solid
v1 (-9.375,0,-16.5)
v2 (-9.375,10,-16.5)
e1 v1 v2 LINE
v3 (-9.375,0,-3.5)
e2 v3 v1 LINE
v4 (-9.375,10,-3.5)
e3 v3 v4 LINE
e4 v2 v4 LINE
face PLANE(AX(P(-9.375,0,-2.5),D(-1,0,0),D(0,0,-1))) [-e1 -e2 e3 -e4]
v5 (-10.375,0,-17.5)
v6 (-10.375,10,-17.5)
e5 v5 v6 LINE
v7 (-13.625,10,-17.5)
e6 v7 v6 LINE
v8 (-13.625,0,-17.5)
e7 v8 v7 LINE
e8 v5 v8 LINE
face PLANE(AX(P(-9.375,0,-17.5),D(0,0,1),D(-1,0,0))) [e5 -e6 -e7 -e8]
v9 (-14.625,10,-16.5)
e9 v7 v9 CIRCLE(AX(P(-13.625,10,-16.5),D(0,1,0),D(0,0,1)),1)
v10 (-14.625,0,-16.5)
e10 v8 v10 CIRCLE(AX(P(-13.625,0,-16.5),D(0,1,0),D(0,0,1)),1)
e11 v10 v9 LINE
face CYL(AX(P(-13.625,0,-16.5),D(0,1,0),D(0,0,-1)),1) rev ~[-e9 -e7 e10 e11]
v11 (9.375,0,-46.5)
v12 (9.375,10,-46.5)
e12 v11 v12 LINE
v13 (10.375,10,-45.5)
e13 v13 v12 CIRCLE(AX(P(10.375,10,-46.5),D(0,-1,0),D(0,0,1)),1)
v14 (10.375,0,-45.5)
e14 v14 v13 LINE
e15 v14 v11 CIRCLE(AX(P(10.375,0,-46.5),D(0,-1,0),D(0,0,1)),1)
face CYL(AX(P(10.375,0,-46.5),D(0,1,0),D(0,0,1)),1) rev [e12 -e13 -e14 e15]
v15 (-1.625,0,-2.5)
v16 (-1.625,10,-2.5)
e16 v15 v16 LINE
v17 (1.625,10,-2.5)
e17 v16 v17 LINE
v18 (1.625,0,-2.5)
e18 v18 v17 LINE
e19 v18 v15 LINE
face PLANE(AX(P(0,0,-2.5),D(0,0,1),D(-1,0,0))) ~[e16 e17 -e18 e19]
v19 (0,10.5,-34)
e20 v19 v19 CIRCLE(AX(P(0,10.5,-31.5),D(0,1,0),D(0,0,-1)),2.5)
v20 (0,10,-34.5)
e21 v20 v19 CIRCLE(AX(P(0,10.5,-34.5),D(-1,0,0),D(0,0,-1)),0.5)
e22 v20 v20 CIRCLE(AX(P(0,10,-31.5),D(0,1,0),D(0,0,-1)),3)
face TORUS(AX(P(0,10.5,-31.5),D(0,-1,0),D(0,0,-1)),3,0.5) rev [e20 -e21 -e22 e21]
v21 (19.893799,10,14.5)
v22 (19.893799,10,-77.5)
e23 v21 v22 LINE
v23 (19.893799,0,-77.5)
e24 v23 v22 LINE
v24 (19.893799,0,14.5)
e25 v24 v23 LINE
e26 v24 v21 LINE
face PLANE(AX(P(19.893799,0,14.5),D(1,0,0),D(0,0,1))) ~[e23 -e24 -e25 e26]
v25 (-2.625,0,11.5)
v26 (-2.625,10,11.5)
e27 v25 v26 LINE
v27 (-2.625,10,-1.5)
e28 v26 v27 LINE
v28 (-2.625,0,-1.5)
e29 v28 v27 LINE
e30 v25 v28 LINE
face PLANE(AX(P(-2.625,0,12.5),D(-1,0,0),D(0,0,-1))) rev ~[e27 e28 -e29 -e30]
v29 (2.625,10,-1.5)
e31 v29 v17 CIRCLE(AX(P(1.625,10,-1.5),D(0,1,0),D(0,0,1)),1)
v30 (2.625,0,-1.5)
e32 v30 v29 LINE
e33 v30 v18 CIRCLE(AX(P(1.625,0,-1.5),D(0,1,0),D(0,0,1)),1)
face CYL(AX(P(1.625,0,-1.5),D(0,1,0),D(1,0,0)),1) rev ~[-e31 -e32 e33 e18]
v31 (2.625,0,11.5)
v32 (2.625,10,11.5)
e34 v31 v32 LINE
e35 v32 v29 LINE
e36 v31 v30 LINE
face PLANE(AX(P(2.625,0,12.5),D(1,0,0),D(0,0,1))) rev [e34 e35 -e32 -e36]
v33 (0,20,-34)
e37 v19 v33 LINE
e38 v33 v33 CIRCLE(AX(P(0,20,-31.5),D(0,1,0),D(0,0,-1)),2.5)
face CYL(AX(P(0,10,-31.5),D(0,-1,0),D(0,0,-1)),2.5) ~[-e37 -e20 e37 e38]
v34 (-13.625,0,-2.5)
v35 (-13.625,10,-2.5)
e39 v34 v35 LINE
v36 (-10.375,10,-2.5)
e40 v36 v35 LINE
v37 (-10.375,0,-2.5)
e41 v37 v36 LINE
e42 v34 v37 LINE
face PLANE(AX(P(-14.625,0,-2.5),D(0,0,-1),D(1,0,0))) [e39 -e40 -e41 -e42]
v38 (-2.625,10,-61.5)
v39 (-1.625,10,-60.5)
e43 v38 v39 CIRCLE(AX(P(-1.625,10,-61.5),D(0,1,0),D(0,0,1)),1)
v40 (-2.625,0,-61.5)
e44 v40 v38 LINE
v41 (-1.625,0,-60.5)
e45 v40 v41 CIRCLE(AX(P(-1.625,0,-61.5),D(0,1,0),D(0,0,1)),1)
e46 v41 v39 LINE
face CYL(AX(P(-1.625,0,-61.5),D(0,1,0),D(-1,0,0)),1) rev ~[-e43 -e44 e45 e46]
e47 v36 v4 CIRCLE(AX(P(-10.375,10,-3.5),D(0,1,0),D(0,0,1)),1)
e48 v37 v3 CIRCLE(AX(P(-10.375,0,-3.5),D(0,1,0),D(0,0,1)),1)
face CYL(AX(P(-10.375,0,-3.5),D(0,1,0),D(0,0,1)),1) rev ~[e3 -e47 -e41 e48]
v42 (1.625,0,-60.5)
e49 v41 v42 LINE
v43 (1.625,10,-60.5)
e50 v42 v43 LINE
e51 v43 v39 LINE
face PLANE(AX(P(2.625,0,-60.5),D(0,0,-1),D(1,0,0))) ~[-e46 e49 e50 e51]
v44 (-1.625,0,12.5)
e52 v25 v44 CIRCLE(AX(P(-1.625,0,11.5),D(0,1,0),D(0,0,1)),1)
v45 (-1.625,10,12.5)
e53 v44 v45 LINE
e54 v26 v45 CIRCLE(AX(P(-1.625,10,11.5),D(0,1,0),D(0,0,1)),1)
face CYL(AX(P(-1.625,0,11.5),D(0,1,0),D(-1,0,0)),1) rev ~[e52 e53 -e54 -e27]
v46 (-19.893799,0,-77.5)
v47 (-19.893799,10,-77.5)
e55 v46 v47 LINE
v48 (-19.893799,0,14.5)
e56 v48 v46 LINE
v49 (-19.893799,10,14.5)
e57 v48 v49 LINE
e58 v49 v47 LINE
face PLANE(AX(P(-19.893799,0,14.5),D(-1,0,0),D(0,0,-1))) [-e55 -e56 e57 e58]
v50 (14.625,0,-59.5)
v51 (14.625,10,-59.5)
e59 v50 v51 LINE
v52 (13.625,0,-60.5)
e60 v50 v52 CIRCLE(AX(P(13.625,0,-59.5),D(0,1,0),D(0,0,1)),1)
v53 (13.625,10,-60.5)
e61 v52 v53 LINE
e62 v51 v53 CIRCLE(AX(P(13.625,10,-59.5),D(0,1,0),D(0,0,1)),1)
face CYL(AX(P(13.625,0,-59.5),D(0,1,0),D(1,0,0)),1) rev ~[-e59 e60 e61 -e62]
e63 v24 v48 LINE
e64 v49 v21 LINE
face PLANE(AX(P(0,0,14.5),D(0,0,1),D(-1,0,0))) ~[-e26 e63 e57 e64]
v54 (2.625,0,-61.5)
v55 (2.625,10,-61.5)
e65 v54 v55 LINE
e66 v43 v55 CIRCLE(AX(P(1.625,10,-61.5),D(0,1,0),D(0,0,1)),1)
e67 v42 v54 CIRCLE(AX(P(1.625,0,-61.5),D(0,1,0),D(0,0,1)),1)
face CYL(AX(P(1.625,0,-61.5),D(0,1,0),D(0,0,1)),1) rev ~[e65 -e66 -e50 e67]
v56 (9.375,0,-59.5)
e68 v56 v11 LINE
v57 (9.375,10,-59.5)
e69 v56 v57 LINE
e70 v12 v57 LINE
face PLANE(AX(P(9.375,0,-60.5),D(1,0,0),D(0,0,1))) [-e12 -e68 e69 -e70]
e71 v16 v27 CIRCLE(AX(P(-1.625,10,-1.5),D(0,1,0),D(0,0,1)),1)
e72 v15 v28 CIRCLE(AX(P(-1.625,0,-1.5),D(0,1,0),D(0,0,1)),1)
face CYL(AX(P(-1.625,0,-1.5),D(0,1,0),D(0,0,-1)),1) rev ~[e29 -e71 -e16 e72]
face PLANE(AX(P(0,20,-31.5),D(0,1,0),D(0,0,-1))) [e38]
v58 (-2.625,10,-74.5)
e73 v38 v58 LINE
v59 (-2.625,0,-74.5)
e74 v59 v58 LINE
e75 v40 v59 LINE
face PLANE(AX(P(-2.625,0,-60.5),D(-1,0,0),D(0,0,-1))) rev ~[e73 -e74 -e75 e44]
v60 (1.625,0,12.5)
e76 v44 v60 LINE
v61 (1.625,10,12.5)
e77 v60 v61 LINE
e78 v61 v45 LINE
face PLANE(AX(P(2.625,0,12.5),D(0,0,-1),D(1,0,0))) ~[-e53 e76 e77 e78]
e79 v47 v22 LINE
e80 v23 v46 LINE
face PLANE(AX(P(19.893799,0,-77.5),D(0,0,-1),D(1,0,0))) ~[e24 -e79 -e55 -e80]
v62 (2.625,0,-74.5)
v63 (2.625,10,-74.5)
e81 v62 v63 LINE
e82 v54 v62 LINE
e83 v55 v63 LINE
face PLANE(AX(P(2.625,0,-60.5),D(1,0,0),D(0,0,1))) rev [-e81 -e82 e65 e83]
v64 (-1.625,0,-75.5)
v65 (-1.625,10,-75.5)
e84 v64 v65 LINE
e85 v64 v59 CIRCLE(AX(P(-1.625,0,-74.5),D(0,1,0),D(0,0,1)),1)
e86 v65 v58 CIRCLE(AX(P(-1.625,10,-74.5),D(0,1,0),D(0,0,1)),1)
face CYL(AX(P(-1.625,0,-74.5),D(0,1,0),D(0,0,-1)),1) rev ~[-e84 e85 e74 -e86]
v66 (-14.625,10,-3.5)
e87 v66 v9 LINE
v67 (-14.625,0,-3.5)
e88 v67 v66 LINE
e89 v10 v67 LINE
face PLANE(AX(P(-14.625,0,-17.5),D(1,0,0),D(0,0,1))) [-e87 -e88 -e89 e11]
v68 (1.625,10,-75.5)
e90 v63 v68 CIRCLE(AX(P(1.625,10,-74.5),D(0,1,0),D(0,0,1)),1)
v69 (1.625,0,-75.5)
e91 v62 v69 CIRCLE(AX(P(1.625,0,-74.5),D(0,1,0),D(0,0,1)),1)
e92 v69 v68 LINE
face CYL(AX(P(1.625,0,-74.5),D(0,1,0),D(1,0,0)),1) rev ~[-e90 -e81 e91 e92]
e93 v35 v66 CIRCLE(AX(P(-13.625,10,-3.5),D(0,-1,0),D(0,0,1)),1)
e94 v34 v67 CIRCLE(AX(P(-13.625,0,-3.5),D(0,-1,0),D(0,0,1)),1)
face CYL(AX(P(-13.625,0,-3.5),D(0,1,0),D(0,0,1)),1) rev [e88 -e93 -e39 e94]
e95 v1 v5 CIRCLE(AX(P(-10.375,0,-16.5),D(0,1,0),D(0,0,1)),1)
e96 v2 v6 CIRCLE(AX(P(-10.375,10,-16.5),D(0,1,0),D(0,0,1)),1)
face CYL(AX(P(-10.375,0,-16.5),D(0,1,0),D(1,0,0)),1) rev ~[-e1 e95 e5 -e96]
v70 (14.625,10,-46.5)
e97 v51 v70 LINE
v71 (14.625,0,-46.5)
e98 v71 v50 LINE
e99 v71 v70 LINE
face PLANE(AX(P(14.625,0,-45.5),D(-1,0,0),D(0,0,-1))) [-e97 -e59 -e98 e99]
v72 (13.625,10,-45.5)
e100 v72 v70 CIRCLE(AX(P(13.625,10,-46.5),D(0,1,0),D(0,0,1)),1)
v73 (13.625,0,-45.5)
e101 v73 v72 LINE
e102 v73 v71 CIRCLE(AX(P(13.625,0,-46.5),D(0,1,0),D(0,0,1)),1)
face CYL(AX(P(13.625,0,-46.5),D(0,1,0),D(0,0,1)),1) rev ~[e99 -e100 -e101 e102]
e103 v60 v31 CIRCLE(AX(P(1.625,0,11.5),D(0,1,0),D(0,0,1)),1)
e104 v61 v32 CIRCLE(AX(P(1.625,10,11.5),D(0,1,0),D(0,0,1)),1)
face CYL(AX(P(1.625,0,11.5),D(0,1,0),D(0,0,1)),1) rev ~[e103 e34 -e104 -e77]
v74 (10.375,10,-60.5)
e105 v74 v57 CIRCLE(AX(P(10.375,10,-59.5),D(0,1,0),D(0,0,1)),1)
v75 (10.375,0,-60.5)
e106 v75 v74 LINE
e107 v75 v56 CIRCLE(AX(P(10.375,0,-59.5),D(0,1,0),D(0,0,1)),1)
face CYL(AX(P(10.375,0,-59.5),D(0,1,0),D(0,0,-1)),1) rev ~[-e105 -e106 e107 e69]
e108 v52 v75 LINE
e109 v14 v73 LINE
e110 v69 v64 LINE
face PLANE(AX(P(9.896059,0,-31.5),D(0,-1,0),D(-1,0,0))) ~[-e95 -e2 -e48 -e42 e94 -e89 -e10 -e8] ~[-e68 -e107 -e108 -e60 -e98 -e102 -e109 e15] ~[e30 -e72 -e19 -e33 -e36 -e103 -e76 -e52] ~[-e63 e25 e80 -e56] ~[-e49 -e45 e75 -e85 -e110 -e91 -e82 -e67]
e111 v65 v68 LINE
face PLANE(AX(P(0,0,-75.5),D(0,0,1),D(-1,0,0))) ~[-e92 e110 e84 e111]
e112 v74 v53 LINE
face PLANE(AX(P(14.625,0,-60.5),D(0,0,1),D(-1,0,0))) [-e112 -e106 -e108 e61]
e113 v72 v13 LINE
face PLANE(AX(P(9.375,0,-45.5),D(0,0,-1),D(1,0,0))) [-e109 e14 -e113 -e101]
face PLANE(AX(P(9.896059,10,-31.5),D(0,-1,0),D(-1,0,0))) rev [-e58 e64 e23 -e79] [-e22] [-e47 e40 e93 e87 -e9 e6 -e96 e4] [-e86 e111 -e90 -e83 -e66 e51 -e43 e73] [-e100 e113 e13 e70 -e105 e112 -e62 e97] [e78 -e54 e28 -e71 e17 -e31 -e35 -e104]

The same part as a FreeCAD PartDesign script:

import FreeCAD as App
import Part
import Sketcher

V = App.Vector
Q = App.Units.Quantity


def edges_at(feature, points):
    """Names of the edges that pass closest to the given points."""
    edges = feature.Shape.Edges
    near = lambda p: min(range(len(edges)), key=lambda i: edges[i].distToShape(Part.Vertex(*p))[0])
    return sorted({f"Edge{near(p) + 1}" for p in points})

doc = App.newDocument("Part")
body = doc.addObject("PartDesign::Body", "Body")

# Sketch on XZ plane
sketch1 = body.newObject("Sketcher::SketchObject", "Sketch")
sketch1.AttachmentSupport = (doc.getObject("XZ_Plane"), [""])
sketch1.MapMode = "FlatFace"
sketch1.addGeometry(Part.LineSegment(V(0, -77.5, 0), V(-19.9, -77.5, 0)), False)
sketch1.addGeometry(Part.LineSegment(V(-19.9, -77.5, 0), V(-19.9, 14.5, 0)), False)
sketch1.addGeometry(Part.LineSegment(V(-19.9, 14.5, 0), V(0, 14.5, 0)), False)
sketch1.addGeometry(Part.LineSegment(V(0, 14.5, 0), V(0, 12.5, 0)), False)
sketch1.addGeometry(Part.LineSegment(V(0, 12.5, 0), V(-2.6, 12.5, 0)), False)
sketch1.addGeometry(Part.LineSegment(V(-2.6, 12.5, 0), V(-2.6, -2.5, 0)), False)
sketch1.addGeometry(Part.LineSegment(V(-2.6, -2.5, 0), V(0, -2.5, 0)), False)
sketch1.addGeometry(Part.LineSegment(V(0, -2.5, 0), V(0, -60.5, 0)), False)
sketch1.addGeometry(Part.LineSegment(V(0, -60.5, 0), V(-2.6, -60.5, 0)), False)
sketch1.addGeometry(Part.LineSegment(V(-2.6, -60.5, 0), V(-2.6, -75.5, 0)), False)
sketch1.addGeometry(Part.LineSegment(V(-2.6, -75.5, 0), V(0, -75.5, 0)), False)
sketch1.addGeometry(Part.LineSegment(V(0, -75.5, 0), V(0, -77.5, 0)), False)
sketch1.addConstraint(Sketcher.Constraint("Coincident", 0, 2, 1, 1))
sketch1.addConstraint(Sketcher.Constraint("Coincident", 1, 2, 2, 1))
sketch1.addConstraint(Sketcher.Constraint("Coincident", 2, 2, 3, 1))
sketch1.addConstraint(Sketcher.Constraint("Coincident", 3, 2, 4, 1))
sketch1.addConstraint(Sketcher.Constraint("Coincident", 4, 2, 5, 1))
sketch1.addConstraint(Sketcher.Constraint("Coincident", 5, 2, 6, 1))
sketch1.addConstraint(Sketcher.Constraint("Coincident", 6, 2, 7, 1))
sketch1.addConstraint(Sketcher.Constraint("Coincident", 7, 2, 8, 1))
sketch1.addConstraint(Sketcher.Constraint("Coincident", 8, 2, 9, 1))
sketch1.addConstraint(Sketcher.Constraint("Coincident", 9, 2, 10, 1))
sketch1.addConstraint(Sketcher.Constraint("Coincident", 10, 2, 11, 1))
sketch1.addConstraint(Sketcher.Constraint("Coincident", 11, 2, 0, 1))
sketch1.addConstraint(Sketcher.Constraint("Horizontal", 0))
sketch1.addConstraint(Sketcher.Constraint("Vertical", 1))
sketch1.addConstraint(Sketcher.Constraint("Horizontal", 2))
sketch1.addConstraint(Sketcher.Constraint("Vertical", 3))
sketch1.addConstraint(Sketcher.Constraint("Horizontal", 4))
sketch1.addConstraint(Sketcher.Constraint("Vertical", 5))
sketch1.addConstraint(Sketcher.Constraint("Horizontal", 6))
sketch1.addConstraint(Sketcher.Constraint("Vertical", 7))
sketch1.addConstraint(Sketcher.Constraint("Horizontal", 8))
sketch1.addConstraint(Sketcher.Constraint("Vertical", 9))
sketch1.addConstraint(Sketcher.Constraint("Horizontal", 10))
sketch1.addConstraint(Sketcher.Constraint("Vertical", 11))
sketch1.addConstraint(Sketcher.Constraint("PointOnObject", 2, 2, -2))
sketch1.addConstraint(Sketcher.Constraint("PointOnObject", 6, 2, -2))
sketch1.addConstraint(Sketcher.Constraint("PointOnObject", 10, 2, -2))
sketch1.addConstraint(Sketcher.Constraint("Vertical", 5, 2, 8, 2))
sketch1.addConstraint(Sketcher.Constraint("Equal", 5, 9))
sketch1.addConstraint(Sketcher.Constraint("Equal", 3, 11))
sketch1.addConstraint(Sketcher.Constraint("DistanceY", 1, 1, 1, 2, Q("92 mm")))
sketch1.addConstraint(Sketcher.Constraint("DistanceY", 3, 2, 3, 1, Q("2 mm")))
sketch1.addConstraint(Sketcher.Constraint("DistanceY", 5, 2, 5, 1, Q("15 mm")))
sketch1.addConstraint(Sketcher.Constraint("DistanceY", 0, 2, -1, 1, Q("77.5 mm")))
sketch1.addConstraint(Sketcher.Constraint("DistanceX", 4, 2, 4, 1, Q("2.625 mm")))
sketch1.addConstraint(Sketcher.Constraint("DistanceX", 0, 2, 0, 1, Q("19.893799 mm")))
pad1 = body.newObject("PartDesign::Pad", "Pad")
pad1.Profile = sketch1
pad1.Length = 10
pad1.Reversed = True
doc.recompute()

fillet = body.newObject("PartDesign::Fillet", "Fillet")
fillet.Base = (pad1, edges_at(pad1, [
    (-2.625, 5, 12.5),
    (-2.625, 5, -2.5),
    (-2.625, 5, -60.5),
    (-2.625, 5, -75.5),
]))
fillet.Radius = 1
doc.recompute()

mirrored = body.newObject("PartDesign::Mirrored", "Mirrored")
mirrored.Originals = [pad1]
mirrored.MirrorPlane = (doc.getObject("YZ_Plane"), [""])
body.Tip = mirrored
doc.recompute()

fillet2 = body.newObject("PartDesign::Fillet", "Fillet001")
fillet2.Base = (mirrored, edges_at(mirrored, [
    (2.625, 5, 12.5),
    (2.625, 5, -2.5),
    (2.625, 5, -60.5),
    (2.625, 5, -75.5),
]))
fillet2.Radius = 1

# Sketch on XZ plane
sketch2 = body.newObject("Sketcher::SketchObject", "Sketch001")
sketch2.AttachmentSupport = (doc.getObject("XZ_Plane"), [""])
sketch2.MapMode = "FlatFace"
sketch2.addGeometry(Part.LineSegment(V(-15, -2, 0), V(-9, -2, 0)), False)
sketch2.addGeometry(Part.LineSegment(V(-9, -2, 0), V(-9, -18, 0)), False)
sketch2.addGeometry(Part.LineSegment(V(-9, -18, 0), V(-15, -18, 0)), False)
sketch2.addGeometry(Part.LineSegment(V(-15, -18, 0), V(-15, -2, 0)), False)
sketch2.addGeometry(Part.LineSegment(V(9, -46, 0), V(15, -46, 0)), False)
sketch2.addGeometry(Part.LineSegment(V(15, -46, 0), V(15, -60, 0)), False)
sketch2.addGeometry(Part.LineSegment(V(15, -60, 0), V(9, -60, 0)), False)
sketch2.addGeometry(Part.LineSegment(V(9, -60, 0), V(9, -46, 0)), False)
sketch2.addConstraint(Sketcher.Constraint("Coincident", 0, 2, 1, 1))
sketch2.addConstraint(Sketcher.Constraint("Coincident", 1, 2, 2, 1))
sketch2.addConstraint(Sketcher.Constraint("Coincident", 2, 2, 3, 1))
sketch2.addConstraint(Sketcher.Constraint("Coincident", 3, 2, 0, 1))
sketch2.addConstraint(Sketcher.Constraint("Coincident", 4, 2, 5, 1))
sketch2.addConstraint(Sketcher.Constraint("Coincident", 5, 2, 6, 1))
sketch2.addConstraint(Sketcher.Constraint("Coincident", 6, 2, 7, 1))
sketch2.addConstraint(Sketcher.Constraint("Coincident", 7, 2, 4, 1))
sketch2.addConstraint(Sketcher.Constraint("Horizontal", 0))
sketch2.addConstraint(Sketcher.Constraint("Vertical", 1))
sketch2.addConstraint(Sketcher.Constraint("Horizontal", 2))
sketch2.addConstraint(Sketcher.Constraint("Vertical", 3))
sketch2.addConstraint(Sketcher.Constraint("Horizontal", 4))
sketch2.addConstraint(Sketcher.Constraint("Vertical", 5))
sketch2.addConstraint(Sketcher.Constraint("Horizontal", 6))
sketch2.addConstraint(Sketcher.Constraint("Vertical", 7))
sketch2.addConstraint(Sketcher.Constraint("Equal", 2, 4))
sketch2.addConstraint(Sketcher.Constraint("Equal", 3, 5))
sketch2.addConstraint(Sketcher.Constraint("DistanceY", 1, 2, 1, 1, Q("15 mm")))
sketch2.addConstraint(Sketcher.Constraint("DistanceX", 1, 2, 4, 2, Q("24 mm")))
sketch2.addConstraint(Sketcher.Constraint("DistanceY", 4, 2, 1, 2, Q("28 mm")))
sketch2.addConstraint(Sketcher.Constraint("DistanceX", 0, 1, 0, 2, Q("5.25 mm")))
sketch2.addConstraint(Sketcher.Constraint("DistanceY", 0, 2, -1, 1, Q("2.5 mm")))
sketch2.addConstraint(Sketcher.Constraint("DistanceX", 0, 2, -1, 1, Q("9.375 mm")))
pocket1 = body.newObject("PartDesign::Pocket", "Pocket")
pocket1.Profile = sketch2
pocket1.Type = "ThroughAll"
doc.recompute()

fillet3 = body.newObject("PartDesign::Fillet", "Fillet002")
fillet3.Base = (pocket1, edges_at(pocket1, [
    (-14.625, 5, -17.5),
    (-14.625, 5, -2.5),
    (-9.375, 5, -2.5),
    (-9.375, 5, -17.5),
    (14.625, 5, -60.5),
    (9.375, 5, -60.5),
    (9.375, 5, -45.5),
    (14.625, 5, -45.5),
]))
fillet3.Radius = 1

# Sketch on XZ plane
sketch3 = body.newObject("Sketcher::SketchObject", "Sketch002")
sketch3.AttachmentSupport = (doc.getObject("XZ_Plane"), [""])
sketch3.MapMode = "FlatFace"
sketch3.AttachmentOffset = App.Placement(V(0, 0, -10), App.Rotation())
sketch3.addGeometry(Part.Circle(V(0, -31.5, 0), V(0, 0, 1), 2.5), False)
sketch3.addConstraint(Sketcher.Constraint("PointOnObject", 0, 3, -2))
sketch3.addConstraint(Sketcher.Constraint("Diameter", 0, Q("5 mm")))
sketch3.addConstraint(Sketcher.Constraint("DistanceY", 0, 3, -1, 1, Q("31.5 mm")))
pad2 = body.newObject("PartDesign::Pad", "Pad001")
pad2.Profile = sketch3
pad2.Length = 10
pad2.Reversed = True
doc.recompute()

fillet4 = body.newObject("PartDesign::Fillet", "Fillet003")
fillet4.Base = (pad2, edges_at(pad2, [(0, 10, -29)]))
fillet4.Radius = 0.5

doc.recompute()
